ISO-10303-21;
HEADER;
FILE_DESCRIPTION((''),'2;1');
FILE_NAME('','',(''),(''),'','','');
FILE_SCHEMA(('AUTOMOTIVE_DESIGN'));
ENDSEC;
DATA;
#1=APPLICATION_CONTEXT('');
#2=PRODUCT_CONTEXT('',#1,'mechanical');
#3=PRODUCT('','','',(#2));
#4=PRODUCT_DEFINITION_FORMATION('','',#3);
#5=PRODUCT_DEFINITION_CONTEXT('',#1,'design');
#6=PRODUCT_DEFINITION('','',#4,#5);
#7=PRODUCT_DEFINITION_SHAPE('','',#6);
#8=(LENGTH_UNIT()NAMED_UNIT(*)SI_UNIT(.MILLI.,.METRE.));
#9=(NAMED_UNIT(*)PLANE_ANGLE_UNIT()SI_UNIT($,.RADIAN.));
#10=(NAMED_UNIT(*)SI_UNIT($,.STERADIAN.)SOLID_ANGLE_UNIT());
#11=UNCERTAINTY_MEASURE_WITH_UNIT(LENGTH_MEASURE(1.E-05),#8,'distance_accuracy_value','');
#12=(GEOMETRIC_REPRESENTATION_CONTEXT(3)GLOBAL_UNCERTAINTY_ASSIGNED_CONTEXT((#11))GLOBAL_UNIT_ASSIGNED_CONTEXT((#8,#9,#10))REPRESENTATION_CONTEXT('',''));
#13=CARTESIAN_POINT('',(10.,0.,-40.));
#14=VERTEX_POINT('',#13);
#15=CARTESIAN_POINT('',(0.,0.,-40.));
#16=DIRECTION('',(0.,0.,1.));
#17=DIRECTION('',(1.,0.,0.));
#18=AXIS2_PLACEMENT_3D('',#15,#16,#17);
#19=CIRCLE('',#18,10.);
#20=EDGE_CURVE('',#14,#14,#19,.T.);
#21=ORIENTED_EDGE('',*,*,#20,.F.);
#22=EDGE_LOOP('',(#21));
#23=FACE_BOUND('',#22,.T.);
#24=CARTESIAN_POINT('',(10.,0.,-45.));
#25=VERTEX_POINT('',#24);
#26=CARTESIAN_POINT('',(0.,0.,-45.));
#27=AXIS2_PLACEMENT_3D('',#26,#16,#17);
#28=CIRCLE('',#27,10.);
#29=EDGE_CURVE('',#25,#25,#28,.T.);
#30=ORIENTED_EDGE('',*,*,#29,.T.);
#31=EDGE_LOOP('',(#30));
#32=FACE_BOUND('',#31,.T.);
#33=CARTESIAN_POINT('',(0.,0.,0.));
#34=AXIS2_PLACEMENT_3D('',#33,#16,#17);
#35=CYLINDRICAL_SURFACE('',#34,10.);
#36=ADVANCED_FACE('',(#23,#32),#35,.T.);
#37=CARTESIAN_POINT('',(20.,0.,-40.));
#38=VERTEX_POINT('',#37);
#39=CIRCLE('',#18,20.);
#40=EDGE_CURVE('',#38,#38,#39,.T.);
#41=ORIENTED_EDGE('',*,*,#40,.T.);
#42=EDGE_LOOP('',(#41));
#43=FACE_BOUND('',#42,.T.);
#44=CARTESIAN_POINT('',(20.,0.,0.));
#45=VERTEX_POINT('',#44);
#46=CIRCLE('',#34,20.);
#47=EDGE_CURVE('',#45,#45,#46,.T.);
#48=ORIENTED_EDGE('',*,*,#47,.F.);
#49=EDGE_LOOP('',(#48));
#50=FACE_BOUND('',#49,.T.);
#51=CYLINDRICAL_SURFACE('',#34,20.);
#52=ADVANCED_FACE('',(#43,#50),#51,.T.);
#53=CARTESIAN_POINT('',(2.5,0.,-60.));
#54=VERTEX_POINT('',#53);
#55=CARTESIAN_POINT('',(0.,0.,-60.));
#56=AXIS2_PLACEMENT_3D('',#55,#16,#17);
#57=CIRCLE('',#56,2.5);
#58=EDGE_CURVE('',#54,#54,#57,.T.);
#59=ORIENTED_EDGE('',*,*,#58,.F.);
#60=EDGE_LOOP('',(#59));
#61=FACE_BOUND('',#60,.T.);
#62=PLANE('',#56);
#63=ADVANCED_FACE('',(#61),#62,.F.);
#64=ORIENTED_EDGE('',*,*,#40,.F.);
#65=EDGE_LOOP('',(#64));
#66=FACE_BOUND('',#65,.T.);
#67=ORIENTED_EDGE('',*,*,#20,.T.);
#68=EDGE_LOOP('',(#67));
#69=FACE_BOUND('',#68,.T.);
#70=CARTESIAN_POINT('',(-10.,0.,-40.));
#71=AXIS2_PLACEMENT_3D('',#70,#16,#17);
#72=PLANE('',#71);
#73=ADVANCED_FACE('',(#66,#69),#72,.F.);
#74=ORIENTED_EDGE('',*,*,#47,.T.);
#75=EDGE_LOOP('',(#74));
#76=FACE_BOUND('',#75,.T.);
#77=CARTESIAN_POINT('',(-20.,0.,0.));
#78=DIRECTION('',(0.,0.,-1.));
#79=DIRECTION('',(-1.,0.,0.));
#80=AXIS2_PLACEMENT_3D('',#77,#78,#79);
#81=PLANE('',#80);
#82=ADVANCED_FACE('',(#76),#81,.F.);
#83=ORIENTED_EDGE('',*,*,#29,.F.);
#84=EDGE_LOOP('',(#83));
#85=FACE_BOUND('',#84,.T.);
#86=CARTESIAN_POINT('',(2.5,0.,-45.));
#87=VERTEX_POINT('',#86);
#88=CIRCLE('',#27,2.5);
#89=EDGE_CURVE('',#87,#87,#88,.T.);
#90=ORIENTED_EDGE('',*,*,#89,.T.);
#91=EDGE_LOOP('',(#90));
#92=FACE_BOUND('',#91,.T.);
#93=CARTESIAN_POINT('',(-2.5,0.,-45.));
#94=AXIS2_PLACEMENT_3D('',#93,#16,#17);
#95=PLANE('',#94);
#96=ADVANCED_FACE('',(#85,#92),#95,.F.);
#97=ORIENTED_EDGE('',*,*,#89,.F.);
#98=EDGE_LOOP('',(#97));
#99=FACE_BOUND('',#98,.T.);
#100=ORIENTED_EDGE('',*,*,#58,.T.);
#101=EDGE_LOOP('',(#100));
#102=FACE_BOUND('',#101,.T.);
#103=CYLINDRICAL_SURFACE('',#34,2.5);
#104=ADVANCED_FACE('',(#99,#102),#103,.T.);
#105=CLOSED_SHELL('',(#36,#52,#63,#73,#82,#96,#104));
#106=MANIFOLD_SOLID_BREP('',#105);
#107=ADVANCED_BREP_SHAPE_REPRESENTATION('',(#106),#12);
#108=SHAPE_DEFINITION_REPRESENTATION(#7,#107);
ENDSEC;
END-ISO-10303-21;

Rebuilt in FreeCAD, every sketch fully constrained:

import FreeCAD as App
import Part
import Sketcher

V = App.Vector
Q = App.Units.Quantity

doc = App.newDocument("Part")
body = doc.addObject("PartDesign::Body", "Body")

# Sketch on XZ plane
sketch1 = body.newObject("Sketcher::SketchObject", "Sketch")
sketch1.AttachmentSupport = (doc.getObject("XZ_Plane"), [""])
sketch1.MapMode = "FlatFace"
sketch1.addGeometry(Part.LineSegment(V(0, -60, 0), V(-2.5, -60, 0)), False)
sketch1.addGeometry(Part.LineSegment(V(-2.5, -60, 0), V(-2.5, -45, 0)), False)
sketch1.addGeometry(Part.LineSegment(V(-2.5, -45, 0), V(-10, -45, 0)), False)
sketch1.addGeometry(Part.LineSegment(V(-10, -45, 0), V(-10, -40, 0)), False)
sketch1.addGeometry(Part.LineSegment(V(-10, -40, 0), V(-20, -40, 0)), False)
sketch1.addGeometry(Part.LineSegment(V(-20, -40, 0), V(-20, 0, 0)), False)
sketch1.addGeometry(Part.LineSegment(V(-20, 0, 0), V(0, 0, 0)), False)
sketch1.addGeometry(Part.LineSegment(V(0, 0, 0), V(0, -60, 0)), False)
sketch1.addConstraint(Sketcher.Constraint("Coincident", 0, 2, 1, 1))
sketch1.addConstraint(Sketcher.Constraint("Coincident", 1, 2, 2, 1))
sketch1.addConstraint(Sketcher.Constraint("Coincident", 2, 2, 3, 1))
sketch1.addConstraint(Sketcher.Constraint("Coincident", 3, 2, 4, 1))
sketch1.addConstraint(Sketcher.Constraint("Coincident", 4, 2, 5, 1))
sketch1.addConstraint(Sketcher.Constraint("Coincident", 5, 2, 6, 1))
sketch1.addConstraint(Sketcher.Constraint("Coincident", 6, 2, 7, 1))
sketch1.addConstraint(Sketcher.Constraint("Coincident", 7, 2, 0, 1))
sketch1.addConstraint(Sketcher.Constraint("Horizontal", 0))
sketch1.addConstraint(Sketcher.Constraint("Vertical", 1))
sketch1.addConstraint(Sketcher.Constraint("Horizontal", 2))
sketch1.addConstraint(Sketcher.Constraint("Vertical", 3))
sketch1.addConstraint(Sketcher.Constraint("Horizontal", 4))
sketch1.addConstraint(Sketcher.Constraint("Vertical", 5))
sketch1.addConstraint(Sketcher.Constraint("Horizontal", 6))
sketch1.addConstraint(Sketcher.Constraint("Vertical", 7))
sketch1.addConstraint(Sketcher.Constraint("Coincident", 6, 2, -1, 1))
sketch1.addConstraint(Sketcher.Constraint("DistanceX", 4, 2, 4, 1, Q("10 mm")))
sketch1.addConstraint(Sketcher.Constraint("DistanceX", 6, 1, 6, 2, Q("20 mm")))
sketch1.addConstraint(Sketcher.Constraint("DistanceY", 1, 1, 1, 2, Q("15 mm")))
sketch1.addConstraint(Sketcher.Constraint("DistanceY", 3, 1, 3, 2, Q("5 mm")))
sketch1.addConstraint(Sketcher.Constraint("DistanceY", 5, 1, 5, 2, Q("40 mm")))
sketch1.addConstraint(Sketcher.Constraint("DistanceX", 0, 2, 0, 1, Q("2.5 mm")))
revolution = body.newObject("PartDesign::Revolution", "Revolution")
revolution.Profile = sketch1
revolution.ReferenceAxis = (sketch1, ["V_Axis"])
revolution.Angle = 360

doc.recompute()
